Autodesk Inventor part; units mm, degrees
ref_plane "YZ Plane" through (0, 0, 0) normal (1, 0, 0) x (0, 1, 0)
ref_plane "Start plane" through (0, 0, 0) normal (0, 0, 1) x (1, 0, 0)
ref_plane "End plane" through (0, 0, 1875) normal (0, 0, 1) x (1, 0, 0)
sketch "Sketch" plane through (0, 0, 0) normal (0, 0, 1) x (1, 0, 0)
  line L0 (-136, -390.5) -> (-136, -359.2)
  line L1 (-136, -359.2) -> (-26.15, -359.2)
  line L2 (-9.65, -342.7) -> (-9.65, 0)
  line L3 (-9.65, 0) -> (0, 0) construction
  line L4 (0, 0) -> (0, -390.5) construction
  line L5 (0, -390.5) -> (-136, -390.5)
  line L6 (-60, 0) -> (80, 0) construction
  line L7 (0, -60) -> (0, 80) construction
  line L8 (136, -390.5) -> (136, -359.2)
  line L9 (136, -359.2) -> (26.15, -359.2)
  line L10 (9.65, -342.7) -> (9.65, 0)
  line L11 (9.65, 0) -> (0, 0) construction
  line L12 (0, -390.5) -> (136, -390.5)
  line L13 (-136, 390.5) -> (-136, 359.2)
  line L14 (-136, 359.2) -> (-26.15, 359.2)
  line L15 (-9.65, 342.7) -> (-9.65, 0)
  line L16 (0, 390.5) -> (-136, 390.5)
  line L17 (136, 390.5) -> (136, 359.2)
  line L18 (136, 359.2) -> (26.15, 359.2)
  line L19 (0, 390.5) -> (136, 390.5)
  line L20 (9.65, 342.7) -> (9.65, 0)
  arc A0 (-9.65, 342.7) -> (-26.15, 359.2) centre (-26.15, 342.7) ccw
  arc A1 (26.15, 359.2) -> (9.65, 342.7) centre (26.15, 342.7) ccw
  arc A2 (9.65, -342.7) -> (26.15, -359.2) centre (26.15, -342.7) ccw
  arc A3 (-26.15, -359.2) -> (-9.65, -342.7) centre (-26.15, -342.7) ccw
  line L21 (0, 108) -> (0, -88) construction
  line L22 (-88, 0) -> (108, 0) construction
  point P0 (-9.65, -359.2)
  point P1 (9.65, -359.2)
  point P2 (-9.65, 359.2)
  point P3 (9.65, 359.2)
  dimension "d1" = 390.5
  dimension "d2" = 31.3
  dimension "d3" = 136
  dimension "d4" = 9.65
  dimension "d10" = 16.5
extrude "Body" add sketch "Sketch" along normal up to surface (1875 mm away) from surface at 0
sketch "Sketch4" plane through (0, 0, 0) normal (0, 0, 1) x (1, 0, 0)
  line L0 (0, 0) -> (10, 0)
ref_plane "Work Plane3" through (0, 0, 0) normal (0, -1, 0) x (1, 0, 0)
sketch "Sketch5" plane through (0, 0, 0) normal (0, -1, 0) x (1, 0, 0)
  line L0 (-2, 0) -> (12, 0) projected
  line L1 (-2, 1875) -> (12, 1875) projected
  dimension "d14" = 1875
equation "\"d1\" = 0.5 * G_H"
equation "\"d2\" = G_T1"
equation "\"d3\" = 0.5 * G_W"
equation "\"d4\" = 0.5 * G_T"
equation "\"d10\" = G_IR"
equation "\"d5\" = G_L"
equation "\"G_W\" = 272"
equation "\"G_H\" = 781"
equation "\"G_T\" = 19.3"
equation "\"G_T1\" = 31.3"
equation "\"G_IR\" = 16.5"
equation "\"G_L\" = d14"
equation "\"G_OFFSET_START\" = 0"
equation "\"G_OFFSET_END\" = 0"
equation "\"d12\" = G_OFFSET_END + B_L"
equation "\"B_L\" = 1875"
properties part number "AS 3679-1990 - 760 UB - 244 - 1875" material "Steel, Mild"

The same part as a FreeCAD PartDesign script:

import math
import FreeCAD as App
import Part
import Sketcher

doc = App.newDocument("Part")
params = doc.addObject("Spreadsheet::Sheet", "Params")
for row, (alias, value) in enumerate([
    ("sketch1_radius", "16.5 mm"),
    ("sketch1_height", "31.3 mm"),
    ("pad1_length", "1875 mm"),
], start=1):
    params.set(f"A{row}", alias)
    params.set(f"B{row}", "=" + value)
    params.setAlias(f"B{row}", alias)

body = doc.addObject("PartDesign::Body", "Body")

# Sketch on XY plane
sketch1 = doc.addObject("Sketcher::SketchObject", "Sketch")
body.addObject(sketch1)
sketch1.AttachmentSupport = (doc.XY_Plane, [""])
sketch1.MapMode = "FlatFace"
sketch1.addGeometry([
    Part.LineSegment(App.Vector(-136, -359, 0), App.Vector(-136, -390, 0)),  # 0
    Part.LineSegment(App.Vector(-136, -390, 0), App.Vector(136, -390, 0)),  # 1
    Part.LineSegment(App.Vector(136, -390, 0), App.Vector(136, -359, 0)),  # 2
    Part.LineSegment(App.Vector(136, -359, 0), App.Vector(26, -359, 0)),  # 3
    Part.ArcOfCircle(Part.Circle(App.Vector(26, -343, 0), App.Vector(0, 0, 1), 16), math.radians(180), math.radians(270)),  # 4
    Part.LineSegment(App.Vector(10, -343, 0), App.Vector(10, 343, 0)),  # 5
    Part.ArcOfCircle(Part.Circle(App.Vector(26, 343, 0), App.Vector(0, 0, 1), 16), math.radians(90), math.radians(180)),  # 6
    Part.LineSegment(App.Vector(26, 359, 0), App.Vector(136, 359, 0)),  # 7
    Part.LineSegment(App.Vector(136, 359, 0), App.Vector(136, 390, 0)),  # 8
    Part.LineSegment(App.Vector(136, 390, 0), App.Vector(-136, 390, 0)),  # 9
    Part.LineSegment(App.Vector(-136, 390, 0), App.Vector(-136, 359, 0)),  # 10
    Part.LineSegment(App.Vector(-136, 359, 0), App.Vector(-26, 359, 0)),  # 11
    Part.ArcOfCircle(Part.Circle(App.Vector(-26, 343, 0), App.Vector(0, 0, 1), 16), math.radians(0), math.radians(90)),  # 12
    Part.LineSegment(App.Vector(-10, 343, 0), App.Vector(-10, -343, 0)),  # 13
    Part.ArcOfCircle(Part.Circle(App.Vector(-26, -343, 0), App.Vector(0, 0, 1), 16), math.radians(-90), math.radians(0)),  # 14
    Part.LineSegment(App.Vector(-26, -359, 0), App.Vector(-136, -359, 0)),  # 15
], False)
sketch1.addConstraint([
    Sketcher.Constraint("Coincident", 0, 2, 1, 1),
    Sketcher.Constraint("Coincident", 1, 2, 2, 1),
    Sketcher.Constraint("Coincident", 2, 2, 3, 1),
    Sketcher.Constraint("Tangent", 3, 2, 4, 2),
    Sketcher.Constraint("Tangent", 4, 1, 5, 1),
    Sketcher.Constraint("Tangent", 5, 2, 6, 2),
    Sketcher.Constraint("Tangent", 6, 1, 7, 1),
    Sketcher.Constraint("Coincident", 7, 2, 8, 1),
    Sketcher.Constraint("Coincident", 8, 2, 9, 1),
    Sketcher.Constraint("Coincident", 9, 2, 10, 1),
    Sketcher.Constraint("Coincident", 10, 2, 11, 1),
    Sketcher.Constraint("Tangent", 11, 2, 12, 2),
    Sketcher.Constraint("Tangent", 12, 1, 13, 1),
    Sketcher.Constraint("Tangent", 13, 2, 14, 2),
    Sketcher.Constraint("Tangent", 14, 1, 15, 1),
    Sketcher.Constraint("Coincident", 15, 2, 0, 1),
    Sketcher.Constraint("Vertical", 0),
    Sketcher.Constraint("Horizontal", 1),
    Sketcher.Constraint("Vertical", 2),
    Sketcher.Constraint("Horizontal", 3),
    Sketcher.Constraint("Vertical", 5),
    Sketcher.Constraint("Horizontal", 7),
    Sketcher.Constraint("Vertical", 8),
    Sketcher.Constraint("Horizontal", 9),
    Sketcher.Constraint("Vertical", 10),
    Sketcher.Constraint("Horizontal", 11),
    Sketcher.Constraint("Vertical", 13),
    Sketcher.Constraint("Horizontal", 15),
    Sketcher.Constraint("Equal", 4, 6),
    Sketcher.Constraint("Equal", 6, 12),
    Sketcher.Constraint("Equal", 12, 14),
    Sketcher.Constraint("Symmetric", 4, 3, 12, 3, -1, 1),
    Sketcher.Constraint("Symmetric", 0, 2, 8, 2, -1, 1),
    Sketcher.Constraint("Symmetric", 7, 2, 10, 2, -2),
    Sketcher.Constraint("Symmetric", 2, 2, 15, 2, -2),
    Sketcher.Constraint("Radius", 4, 16.5),
    Sketcher.Constraint("DistanceY", 0, 2, 0, 1, 31.3),
    Sketcher.Constraint("DistanceX", 0, 2, -1, 1, 136.0),
    Sketcher.Constraint("DistanceY", 0, 2, -1, 1, 390.5),
    Sketcher.Constraint("DistanceX", -1, 1, 4, 1, 9.65),
])
sketch1.setExpression("Constraints[35]", "Params.sketch1_radius")
sketch1.setExpression("Constraints[36]", "Params.sketch1_height")
pad1 = doc.addObject("PartDesign::Pad", "Pad")
body.addObject(pad1)
pad1.Profile = sketch1
pad1.setExpression("Length", "Params.pad1_length")

doc.recompute()
